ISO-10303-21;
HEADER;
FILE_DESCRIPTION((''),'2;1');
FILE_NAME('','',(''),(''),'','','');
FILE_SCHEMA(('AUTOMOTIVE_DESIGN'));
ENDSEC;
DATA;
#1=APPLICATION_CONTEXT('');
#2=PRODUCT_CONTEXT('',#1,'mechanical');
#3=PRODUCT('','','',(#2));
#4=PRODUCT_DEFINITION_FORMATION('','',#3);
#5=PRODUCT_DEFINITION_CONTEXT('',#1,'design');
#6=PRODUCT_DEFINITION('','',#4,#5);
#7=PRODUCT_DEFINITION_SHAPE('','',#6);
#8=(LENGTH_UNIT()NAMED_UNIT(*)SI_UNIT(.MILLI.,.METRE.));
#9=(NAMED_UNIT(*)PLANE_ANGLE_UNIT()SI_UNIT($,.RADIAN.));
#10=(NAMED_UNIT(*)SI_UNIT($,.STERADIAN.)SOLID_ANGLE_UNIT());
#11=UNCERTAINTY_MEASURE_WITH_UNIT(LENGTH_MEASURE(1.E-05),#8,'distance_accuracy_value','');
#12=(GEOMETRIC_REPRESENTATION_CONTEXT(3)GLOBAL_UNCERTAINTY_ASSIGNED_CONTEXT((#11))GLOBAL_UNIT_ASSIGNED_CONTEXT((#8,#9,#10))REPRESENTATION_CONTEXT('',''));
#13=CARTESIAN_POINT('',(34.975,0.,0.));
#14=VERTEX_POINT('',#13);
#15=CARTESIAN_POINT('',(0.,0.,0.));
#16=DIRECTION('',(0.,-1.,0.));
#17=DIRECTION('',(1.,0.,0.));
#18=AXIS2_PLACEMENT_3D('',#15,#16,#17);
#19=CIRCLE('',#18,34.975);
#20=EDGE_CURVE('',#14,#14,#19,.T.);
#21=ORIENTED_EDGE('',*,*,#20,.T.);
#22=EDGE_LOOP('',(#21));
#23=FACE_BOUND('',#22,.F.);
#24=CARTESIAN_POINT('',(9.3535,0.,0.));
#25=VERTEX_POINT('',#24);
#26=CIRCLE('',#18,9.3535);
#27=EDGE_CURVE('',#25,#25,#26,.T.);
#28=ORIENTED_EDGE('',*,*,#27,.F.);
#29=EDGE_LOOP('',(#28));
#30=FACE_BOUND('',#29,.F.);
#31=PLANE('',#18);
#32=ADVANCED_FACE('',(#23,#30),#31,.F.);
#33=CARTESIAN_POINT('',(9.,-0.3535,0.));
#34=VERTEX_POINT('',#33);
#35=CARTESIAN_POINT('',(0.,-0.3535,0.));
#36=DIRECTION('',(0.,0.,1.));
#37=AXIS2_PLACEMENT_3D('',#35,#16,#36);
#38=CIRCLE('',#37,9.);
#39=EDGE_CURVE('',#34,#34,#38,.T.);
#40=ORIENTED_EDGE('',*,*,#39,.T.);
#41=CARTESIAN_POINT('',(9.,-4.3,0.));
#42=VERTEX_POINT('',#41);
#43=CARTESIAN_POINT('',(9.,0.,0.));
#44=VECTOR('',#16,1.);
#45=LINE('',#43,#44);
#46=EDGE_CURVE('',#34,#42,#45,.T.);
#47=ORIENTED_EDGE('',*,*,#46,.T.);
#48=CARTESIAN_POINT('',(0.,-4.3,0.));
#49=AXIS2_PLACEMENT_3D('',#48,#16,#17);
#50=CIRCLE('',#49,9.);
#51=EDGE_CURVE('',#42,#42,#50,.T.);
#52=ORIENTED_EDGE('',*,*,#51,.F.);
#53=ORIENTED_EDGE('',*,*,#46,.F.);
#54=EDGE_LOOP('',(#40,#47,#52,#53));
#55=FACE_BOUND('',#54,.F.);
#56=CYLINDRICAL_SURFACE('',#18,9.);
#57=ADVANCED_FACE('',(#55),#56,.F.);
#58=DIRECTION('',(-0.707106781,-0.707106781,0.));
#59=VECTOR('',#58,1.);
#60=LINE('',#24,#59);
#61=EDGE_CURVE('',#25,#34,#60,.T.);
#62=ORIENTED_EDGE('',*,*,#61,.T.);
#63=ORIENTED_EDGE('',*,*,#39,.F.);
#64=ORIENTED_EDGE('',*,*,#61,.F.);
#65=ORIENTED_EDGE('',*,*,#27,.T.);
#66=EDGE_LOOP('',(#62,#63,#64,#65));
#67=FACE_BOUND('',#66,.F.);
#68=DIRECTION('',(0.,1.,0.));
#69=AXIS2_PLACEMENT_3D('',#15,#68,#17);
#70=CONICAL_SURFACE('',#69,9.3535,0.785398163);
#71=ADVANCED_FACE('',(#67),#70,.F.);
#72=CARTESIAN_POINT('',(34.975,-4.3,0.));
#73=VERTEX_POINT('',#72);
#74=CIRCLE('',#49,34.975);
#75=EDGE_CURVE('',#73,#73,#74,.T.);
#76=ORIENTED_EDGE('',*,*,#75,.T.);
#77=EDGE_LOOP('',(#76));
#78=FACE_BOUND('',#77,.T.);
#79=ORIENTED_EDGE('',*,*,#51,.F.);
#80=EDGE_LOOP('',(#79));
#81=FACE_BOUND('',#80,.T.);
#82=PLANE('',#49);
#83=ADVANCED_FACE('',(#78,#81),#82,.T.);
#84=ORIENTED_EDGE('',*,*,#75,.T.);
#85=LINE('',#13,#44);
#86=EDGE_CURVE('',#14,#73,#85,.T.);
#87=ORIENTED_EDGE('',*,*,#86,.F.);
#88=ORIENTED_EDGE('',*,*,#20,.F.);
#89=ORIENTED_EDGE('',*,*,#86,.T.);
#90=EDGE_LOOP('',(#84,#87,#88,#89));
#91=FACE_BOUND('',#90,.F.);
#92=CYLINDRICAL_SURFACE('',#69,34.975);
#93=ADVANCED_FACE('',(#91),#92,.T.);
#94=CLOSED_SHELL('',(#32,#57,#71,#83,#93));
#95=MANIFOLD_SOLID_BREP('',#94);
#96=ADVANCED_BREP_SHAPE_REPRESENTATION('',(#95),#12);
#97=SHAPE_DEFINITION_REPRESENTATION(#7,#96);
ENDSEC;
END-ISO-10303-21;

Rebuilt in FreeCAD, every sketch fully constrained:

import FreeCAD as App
import Part
import Sketcher
from FreeCAD import Vector
Q = App.Units.Quantity

doc = App.newDocument("Part")
body = doc.addObject("PartDesign::Body", "Body")

# Sketch on XZ plane
sketch1 = body.newObject("Sketcher::SketchObject", "Sketch")
sketch1.AttachmentSupport = (doc.getObject("XZ_Plane"), [""])
sketch1.MapMode = "FlatFace"
sketch1.addGeometry(Part.Circle(Vector(0, 0, 0), Vector(0, 0, 1), 35), False)
sketch1.addConstraint(Sketcher.Constraint("Coincident", 0, 3, -1, 1))
sketch1.addConstraint(Sketcher.Constraint("Diameter", 0, Q("69.95 mm")))
pad1 = body.newObject("PartDesign::Pad", "Pad")
pad1.Profile = sketch1
pad1.Length = 4.3

# Sketch on XZ plane
sketch2 = body.newObject("Sketcher::SketchObject", "Sketch001")
sketch2.AttachmentSupport = (doc.getObject("XZ_Plane"), [""])
sketch2.MapMode = "FlatFace"
sketch2.addGeometry(Part.Circle(Vector(0, 0, 0), Vector(0, 0, 1), 9), False)
sketch2.addConstraint(Sketcher.Constraint("Coincident", 0, 3, -1, 1))
sketch2.addConstraint(Sketcher.Constraint("Diameter", 0, Q("18 mm")))
doc.recompute()
hole = body.newObject("PartDesign::Hole", "Hole")
hole.Profile = sketch2
hole.ThreadType = "None"
hole.Diameter = 18
hole.DepthType = "ThroughAll"
hole.HoleCutType = "Countersink"
hole.HoleCutDiameter = 18.707
hole.HoleCutCountersinkAngle = 90
hole.Reversed = True

doc.recompute()
